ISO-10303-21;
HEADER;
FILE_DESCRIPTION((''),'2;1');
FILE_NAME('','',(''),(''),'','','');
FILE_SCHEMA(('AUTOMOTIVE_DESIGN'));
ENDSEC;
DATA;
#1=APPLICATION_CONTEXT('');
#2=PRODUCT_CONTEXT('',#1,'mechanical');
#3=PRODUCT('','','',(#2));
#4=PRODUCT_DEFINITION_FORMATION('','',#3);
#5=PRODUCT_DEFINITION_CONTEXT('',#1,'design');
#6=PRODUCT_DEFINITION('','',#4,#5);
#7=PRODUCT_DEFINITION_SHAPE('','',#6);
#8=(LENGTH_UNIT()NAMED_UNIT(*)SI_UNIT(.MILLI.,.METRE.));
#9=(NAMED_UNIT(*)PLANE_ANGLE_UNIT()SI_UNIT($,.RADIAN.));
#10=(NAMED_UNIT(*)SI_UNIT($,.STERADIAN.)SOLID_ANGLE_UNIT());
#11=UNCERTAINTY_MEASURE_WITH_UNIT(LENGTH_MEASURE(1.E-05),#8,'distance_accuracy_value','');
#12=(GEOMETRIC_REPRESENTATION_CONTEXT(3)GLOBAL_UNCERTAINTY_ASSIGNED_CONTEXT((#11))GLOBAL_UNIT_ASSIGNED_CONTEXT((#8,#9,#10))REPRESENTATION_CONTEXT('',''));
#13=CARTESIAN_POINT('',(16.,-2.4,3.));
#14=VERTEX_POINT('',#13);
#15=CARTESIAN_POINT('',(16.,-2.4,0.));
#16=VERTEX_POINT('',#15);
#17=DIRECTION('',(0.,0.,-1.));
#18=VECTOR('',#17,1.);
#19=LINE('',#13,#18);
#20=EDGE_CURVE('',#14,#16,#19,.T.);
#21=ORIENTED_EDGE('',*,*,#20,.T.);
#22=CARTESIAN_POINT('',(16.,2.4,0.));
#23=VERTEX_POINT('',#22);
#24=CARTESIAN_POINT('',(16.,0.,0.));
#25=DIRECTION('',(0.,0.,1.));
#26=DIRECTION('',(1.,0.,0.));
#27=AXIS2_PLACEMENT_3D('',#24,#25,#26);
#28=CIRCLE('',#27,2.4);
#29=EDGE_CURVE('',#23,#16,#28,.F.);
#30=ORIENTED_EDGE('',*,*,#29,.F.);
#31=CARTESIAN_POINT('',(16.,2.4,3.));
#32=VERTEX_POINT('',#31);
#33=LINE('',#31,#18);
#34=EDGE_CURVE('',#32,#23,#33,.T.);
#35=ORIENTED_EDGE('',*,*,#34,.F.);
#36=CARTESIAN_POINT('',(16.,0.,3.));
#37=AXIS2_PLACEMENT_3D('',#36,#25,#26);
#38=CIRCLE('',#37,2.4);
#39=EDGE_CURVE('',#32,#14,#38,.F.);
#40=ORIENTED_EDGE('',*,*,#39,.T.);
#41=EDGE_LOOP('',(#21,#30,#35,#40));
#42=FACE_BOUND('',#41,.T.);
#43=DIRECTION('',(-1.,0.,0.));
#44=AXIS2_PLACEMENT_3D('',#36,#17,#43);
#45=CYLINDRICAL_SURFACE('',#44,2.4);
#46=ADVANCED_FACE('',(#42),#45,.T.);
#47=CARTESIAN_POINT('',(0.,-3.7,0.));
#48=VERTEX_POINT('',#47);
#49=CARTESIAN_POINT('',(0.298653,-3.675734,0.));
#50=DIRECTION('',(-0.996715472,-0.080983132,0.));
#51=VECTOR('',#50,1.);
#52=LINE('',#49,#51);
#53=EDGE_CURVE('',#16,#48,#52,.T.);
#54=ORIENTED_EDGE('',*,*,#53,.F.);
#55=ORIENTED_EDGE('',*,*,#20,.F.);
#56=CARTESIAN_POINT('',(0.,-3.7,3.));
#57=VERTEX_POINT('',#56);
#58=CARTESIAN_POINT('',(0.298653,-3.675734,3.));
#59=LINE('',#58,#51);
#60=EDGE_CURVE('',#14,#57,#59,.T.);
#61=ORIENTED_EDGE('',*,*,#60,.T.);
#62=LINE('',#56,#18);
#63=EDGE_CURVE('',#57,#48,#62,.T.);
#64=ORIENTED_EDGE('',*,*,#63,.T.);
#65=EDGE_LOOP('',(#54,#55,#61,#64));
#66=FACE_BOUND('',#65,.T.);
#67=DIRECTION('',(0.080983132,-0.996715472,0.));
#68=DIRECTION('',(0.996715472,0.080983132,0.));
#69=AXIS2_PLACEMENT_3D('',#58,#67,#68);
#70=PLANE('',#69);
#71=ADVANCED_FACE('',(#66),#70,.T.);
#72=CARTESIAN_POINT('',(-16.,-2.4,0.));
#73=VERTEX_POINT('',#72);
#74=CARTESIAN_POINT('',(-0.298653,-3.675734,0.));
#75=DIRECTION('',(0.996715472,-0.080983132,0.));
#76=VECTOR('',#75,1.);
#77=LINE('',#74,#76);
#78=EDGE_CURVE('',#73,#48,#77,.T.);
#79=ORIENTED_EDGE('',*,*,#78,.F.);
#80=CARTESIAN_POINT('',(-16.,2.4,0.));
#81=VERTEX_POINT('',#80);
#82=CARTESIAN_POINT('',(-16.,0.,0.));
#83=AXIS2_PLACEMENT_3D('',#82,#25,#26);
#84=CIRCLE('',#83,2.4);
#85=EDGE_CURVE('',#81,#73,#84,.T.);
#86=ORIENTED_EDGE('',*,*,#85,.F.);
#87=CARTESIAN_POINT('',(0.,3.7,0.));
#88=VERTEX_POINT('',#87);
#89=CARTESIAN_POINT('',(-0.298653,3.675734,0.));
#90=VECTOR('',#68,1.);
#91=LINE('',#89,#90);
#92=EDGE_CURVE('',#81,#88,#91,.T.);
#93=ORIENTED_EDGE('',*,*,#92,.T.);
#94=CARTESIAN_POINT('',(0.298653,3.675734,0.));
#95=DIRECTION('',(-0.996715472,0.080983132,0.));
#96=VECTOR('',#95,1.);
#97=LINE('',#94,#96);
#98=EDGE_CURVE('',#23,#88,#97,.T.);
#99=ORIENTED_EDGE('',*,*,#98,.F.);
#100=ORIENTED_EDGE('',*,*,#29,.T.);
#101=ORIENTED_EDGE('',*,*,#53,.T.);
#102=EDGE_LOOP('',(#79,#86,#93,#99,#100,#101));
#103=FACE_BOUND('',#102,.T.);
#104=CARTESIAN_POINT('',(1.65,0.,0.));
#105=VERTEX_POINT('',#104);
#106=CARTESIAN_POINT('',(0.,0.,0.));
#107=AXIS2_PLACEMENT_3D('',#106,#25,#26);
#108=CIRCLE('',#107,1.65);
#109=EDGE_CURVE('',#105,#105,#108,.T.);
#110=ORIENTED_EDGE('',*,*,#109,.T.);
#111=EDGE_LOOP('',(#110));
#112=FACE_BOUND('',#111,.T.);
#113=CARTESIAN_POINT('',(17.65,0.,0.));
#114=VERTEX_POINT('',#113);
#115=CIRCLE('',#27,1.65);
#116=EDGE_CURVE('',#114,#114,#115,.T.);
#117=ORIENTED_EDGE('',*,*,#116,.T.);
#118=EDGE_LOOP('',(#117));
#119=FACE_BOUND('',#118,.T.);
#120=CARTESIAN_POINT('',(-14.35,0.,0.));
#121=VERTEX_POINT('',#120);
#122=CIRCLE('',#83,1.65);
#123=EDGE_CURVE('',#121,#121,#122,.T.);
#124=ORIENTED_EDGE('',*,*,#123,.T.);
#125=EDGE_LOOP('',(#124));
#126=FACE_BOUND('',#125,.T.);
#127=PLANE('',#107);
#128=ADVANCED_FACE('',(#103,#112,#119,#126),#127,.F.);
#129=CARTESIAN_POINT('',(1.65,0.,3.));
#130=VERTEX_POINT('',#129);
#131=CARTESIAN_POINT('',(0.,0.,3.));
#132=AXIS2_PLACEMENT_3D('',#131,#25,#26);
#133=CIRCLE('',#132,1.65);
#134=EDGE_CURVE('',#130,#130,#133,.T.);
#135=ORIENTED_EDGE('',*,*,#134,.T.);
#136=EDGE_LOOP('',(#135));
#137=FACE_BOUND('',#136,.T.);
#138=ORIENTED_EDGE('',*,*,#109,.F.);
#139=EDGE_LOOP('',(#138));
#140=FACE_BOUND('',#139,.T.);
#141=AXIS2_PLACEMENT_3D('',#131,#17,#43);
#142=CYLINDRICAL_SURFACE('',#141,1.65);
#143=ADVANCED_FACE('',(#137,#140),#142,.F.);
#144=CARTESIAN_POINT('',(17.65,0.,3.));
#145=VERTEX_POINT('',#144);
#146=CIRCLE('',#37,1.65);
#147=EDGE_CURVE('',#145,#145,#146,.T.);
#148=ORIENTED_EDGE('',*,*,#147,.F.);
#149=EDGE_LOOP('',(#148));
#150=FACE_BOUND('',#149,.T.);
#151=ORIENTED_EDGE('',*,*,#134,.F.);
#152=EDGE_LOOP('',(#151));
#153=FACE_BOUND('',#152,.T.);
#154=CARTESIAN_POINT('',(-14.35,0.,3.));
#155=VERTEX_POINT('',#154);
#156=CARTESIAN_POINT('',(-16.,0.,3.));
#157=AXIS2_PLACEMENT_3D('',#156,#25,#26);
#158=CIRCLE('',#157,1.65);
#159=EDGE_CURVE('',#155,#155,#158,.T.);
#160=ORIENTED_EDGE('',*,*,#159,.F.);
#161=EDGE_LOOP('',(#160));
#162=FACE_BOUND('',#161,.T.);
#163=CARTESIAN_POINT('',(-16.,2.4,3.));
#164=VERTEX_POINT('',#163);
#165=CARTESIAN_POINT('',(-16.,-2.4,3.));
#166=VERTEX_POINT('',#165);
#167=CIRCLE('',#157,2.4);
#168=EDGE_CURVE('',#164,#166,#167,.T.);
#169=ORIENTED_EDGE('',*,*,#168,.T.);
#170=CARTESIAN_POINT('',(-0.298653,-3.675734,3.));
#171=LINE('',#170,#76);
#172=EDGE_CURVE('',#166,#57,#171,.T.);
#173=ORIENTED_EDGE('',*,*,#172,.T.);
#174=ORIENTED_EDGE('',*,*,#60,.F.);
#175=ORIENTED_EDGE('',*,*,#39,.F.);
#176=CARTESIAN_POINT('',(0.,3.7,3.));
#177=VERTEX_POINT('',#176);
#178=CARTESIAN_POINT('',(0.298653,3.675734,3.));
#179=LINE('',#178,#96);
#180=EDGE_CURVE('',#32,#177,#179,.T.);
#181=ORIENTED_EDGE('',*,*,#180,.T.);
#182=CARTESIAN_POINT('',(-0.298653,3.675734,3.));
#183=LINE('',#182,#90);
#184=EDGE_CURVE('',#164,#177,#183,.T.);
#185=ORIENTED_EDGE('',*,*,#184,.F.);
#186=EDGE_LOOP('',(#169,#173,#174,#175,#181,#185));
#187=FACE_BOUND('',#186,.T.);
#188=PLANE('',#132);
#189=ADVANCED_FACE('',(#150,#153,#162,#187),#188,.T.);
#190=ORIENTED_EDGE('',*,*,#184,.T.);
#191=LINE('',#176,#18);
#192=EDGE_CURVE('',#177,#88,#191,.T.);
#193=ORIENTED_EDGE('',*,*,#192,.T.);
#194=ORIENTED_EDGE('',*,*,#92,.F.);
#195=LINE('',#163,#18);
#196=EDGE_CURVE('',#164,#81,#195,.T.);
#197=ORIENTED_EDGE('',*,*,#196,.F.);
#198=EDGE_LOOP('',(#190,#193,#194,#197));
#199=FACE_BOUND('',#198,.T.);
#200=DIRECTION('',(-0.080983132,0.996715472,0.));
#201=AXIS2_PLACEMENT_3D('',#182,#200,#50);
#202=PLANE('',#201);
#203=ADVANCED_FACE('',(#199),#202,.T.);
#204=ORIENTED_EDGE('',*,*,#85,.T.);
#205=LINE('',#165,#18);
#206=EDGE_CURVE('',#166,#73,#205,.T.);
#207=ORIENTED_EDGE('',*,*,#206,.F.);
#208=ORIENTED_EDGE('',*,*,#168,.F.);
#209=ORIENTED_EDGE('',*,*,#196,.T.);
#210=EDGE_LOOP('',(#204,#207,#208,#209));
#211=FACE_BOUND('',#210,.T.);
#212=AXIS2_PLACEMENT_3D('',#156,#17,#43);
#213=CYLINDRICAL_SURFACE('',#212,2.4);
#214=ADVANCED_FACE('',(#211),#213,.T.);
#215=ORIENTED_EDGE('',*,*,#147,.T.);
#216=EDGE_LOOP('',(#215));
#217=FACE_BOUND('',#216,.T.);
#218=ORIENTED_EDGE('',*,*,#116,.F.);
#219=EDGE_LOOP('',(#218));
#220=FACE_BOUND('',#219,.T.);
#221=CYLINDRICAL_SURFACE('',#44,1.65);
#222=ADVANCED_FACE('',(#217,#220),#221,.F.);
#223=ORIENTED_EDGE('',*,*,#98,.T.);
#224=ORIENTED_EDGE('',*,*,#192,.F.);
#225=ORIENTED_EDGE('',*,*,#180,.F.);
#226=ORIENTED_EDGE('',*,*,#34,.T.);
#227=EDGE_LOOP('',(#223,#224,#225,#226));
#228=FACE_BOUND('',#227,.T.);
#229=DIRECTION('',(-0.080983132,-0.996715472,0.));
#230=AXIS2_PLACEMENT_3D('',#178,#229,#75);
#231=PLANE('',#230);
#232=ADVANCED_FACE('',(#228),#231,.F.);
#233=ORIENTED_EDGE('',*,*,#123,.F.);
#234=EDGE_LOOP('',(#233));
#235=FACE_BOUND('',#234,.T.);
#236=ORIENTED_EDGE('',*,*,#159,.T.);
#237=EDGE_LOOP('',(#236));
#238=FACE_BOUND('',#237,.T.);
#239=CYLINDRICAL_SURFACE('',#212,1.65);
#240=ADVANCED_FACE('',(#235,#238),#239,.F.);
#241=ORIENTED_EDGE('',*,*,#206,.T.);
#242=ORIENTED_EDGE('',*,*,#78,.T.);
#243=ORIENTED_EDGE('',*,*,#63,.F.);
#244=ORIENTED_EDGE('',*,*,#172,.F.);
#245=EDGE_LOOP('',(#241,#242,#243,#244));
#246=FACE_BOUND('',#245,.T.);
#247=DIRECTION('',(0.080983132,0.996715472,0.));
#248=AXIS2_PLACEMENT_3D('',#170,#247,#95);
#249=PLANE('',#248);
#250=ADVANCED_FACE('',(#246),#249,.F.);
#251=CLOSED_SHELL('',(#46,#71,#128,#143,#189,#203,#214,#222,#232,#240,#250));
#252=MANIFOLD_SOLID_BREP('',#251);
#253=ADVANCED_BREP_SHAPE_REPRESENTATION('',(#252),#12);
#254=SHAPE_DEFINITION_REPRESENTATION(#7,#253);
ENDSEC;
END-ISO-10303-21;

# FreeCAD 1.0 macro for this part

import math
import FreeCAD as App
import Part
import Sketcher
from FreeCAD import Vector

doc = App.newDocument("Part")
body = doc.addObject("PartDesign::Body", "Body")

# Sketch on XY plane
sketch1 = body.newObject("Sketcher::SketchObject", "Sketch")
sketch1.AttachmentSupport = (doc.getObject("XY_Plane"), [""])
sketch1.MapMode = "FlatFace"
sketch1.addGeometry(Part.ArcOfCircle(Part.Circle(Vector(-16, 0, 0), Vector(0, 0, 1), 2.4), math.radians(90), math.radians(270)), False)
sketch1.addGeometry(Part.LineSegment(Vector(-16, -2.4, 0), Vector(0, -3.7, 0)), False)
sketch1.addGeometry(Part.LineSegment(Vector(0, -3.7, 0), Vector(16, -2.4, 0)), False)
sketch1.addGeometry(Part.ArcOfCircle(Part.Circle(Vector(16, 0, 0), Vector(0, 0, 1), 2.4), math.radians(-90), math.radians(90)), False)
sketch1.addGeometry(Part.LineSegment(Vector(16, 2.4, 0), Vector(0, 3.7, 0)), False)
sketch1.addGeometry(Part.LineSegment(Vector(0, 3.7, 0), Vector(-16, 2.4, 0)), False)
sketch1.addGeometry(Part.Circle(Vector(-16, 0, 0), Vector(0, 0, 1), 1.6), False)
sketch1.addGeometry(Part.Circle(Vector(0, 0, 0), Vector(0, 0, 1), 1.6), False)
sketch1.addGeometry(Part.Circle(Vector(16, 0, 0), Vector(0, 0, 1), 1.6), False)
sketch1.addConstraint(Sketcher.Constraint("Coincident", 0, 2, 1, 1))
sketch1.addConstraint(Sketcher.Constraint("Coincident", 1, 2, 2, 1))
sketch1.addConstraint(Sketcher.Constraint("Coincident", 2, 2, 3, 1))
sketch1.addConstraint(Sketcher.Constraint("Coincident", 3, 2, 4, 1))
sketch1.addConstraint(Sketcher.Constraint("Coincident", 4, 2, 5, 1))
sketch1.addConstraint(Sketcher.Constraint("Coincident", 5, 2, 0, 1))
sketch1.addConstraint(Sketcher.Constraint("Coincident", 7, 3, -1, 1))
sketch1.addConstraint(Sketcher.Constraint("Coincident", 6, 3, 0, 3))
sketch1.addConstraint(Sketcher.Constraint("Coincident", 8, 3, 3, 3))
sketch1.addConstraint(Sketcher.Constraint("Equal", 0, 3))
sketch1.addConstraint(Sketcher.Constraint("Equal", 6, 7))
sketch1.addConstraint(Sketcher.Constraint("Equal", 7, 8))
sketch1.addConstraint(Sketcher.Constraint("Symmetric", 0, 3, 3, 3, -1, 1))
sketch1.addConstraint(Sketcher.Constraint("Symmetric", 1, 2, 4, 2, -1, 1))
sketch1.addConstraint(Sketcher.Constraint("Symmetric", 0, 2, 2, 2, -2))
sketch1.addConstraint(Sketcher.Constraint("PointOnObject", 1, 2, -2))
sketch1.addConstraint(Sketcher.Constraint("Parallel", 1, 4))
sketch1.addConstraint(Sketcher.Constraint("Parallel", 2, 5))
sketch1.addConstraint(Sketcher.Constraint("Vertical", 6, 3, 0, 2))
sketch1.addConstraint(Sketcher.Constraint("Diameter", 6, 3.3))
sketch1.addConstraint(Sketcher.Constraint("Radius", 0, 2.4))
sketch1.addConstraint(Sketcher.Constraint("DistanceX", 0, 3, -1, 1, 16.0))
sketch1.addConstraint(Sketcher.Constraint("DistanceY", 1, 2, -1, 1, 3.7))
pad1 = body.newObject("PartDesign::Pad", "Pad")
pad1.Profile = sketch1
pad1.Length = 3

doc.recompute()
